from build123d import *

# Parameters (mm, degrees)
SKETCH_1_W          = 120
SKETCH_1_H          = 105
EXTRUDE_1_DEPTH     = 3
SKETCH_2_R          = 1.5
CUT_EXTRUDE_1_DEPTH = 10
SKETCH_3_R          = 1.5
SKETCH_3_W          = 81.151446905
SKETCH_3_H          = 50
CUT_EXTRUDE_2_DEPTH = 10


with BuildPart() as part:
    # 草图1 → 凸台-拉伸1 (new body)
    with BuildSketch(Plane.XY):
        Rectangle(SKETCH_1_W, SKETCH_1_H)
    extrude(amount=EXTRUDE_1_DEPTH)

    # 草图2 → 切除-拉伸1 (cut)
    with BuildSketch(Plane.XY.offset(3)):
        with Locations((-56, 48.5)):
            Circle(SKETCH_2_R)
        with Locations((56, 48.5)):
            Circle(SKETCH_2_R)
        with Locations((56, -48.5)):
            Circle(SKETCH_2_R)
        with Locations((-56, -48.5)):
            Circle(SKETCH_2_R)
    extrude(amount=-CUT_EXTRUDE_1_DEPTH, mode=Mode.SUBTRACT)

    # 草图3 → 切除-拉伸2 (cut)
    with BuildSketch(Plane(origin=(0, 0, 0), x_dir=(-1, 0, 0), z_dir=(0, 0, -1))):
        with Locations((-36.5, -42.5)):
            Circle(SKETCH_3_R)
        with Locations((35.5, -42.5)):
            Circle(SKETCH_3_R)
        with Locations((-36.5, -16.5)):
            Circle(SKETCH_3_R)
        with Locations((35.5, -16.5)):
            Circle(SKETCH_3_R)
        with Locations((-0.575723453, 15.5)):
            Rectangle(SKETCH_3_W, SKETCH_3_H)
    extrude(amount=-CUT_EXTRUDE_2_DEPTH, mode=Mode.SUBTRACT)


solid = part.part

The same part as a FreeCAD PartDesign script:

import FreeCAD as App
import Part
import Sketcher
Q = App.Units.Quantity

doc = App.newDocument("Part")
body = doc.addObject("PartDesign::Body", "Body")

sketch1 = body.newObject("Sketcher::SketchObject", "Sketch")
sketch1.AttachmentSupport = (doc.getObject("XY_Plane"), [""])
sketch1.MapMode = "FlatFace"
sketch1.addGeometry(Part.LineSegment(App.Vector(-60, 52, 0), App.Vector(-60, -52, 0)), False)
sketch1.addGeometry(Part.LineSegment(App.Vector(-60, -52, 0), App.Vector(60, -52, 0)), False)
sketch1.addGeometry(Part.LineSegment(App.Vector(60, -52, 0), App.Vector(60, 52, 0)), False)
sketch1.addGeometry(Part.LineSegment(App.Vector(60, 52, 0), App.Vector(-60, 52, 0)), False)
sketch1.addConstraint(Sketcher.Constraint("Coincident", 0, 2, 1, 1))
sketch1.addConstraint(Sketcher.Constraint("Coincident", 1, 2, 2, 1))
sketch1.addConstraint(Sketcher.Constraint("Coincident", 2, 2, 3, 1))
sketch1.addConstraint(Sketcher.Constraint("Coincident", 3, 2, 0, 1))
sketch1.addConstraint(Sketcher.Constraint("Vertical", 0))
sketch1.addConstraint(Sketcher.Constraint("Horizontal", 1))
sketch1.addConstraint(Sketcher.Constraint("Vertical", 2))
sketch1.addConstraint(Sketcher.Constraint("Horizontal", 3))
sketch1.addConstraint(Sketcher.Constraint("Symmetric", 0, 2, 2, 2, -1, 1))
sketch1.addConstraint(Sketcher.Constraint("DistanceX", 1, 1, 1, 2, Q("120 mm")))
sketch1.addConstraint(Sketcher.Constraint("DistanceY", 0, 2, 0, 1, Q("105 mm")))
pad1 = body.newObject("PartDesign::Pad", "Pad")
pad1.Profile = sketch1
pad1.Length = 3

sketch2 = body.newObject("Sketcher::SketchObject", "Sketch001")
sketch2.AttachmentSupport = (doc.getObject("XY_Plane"), [""])
sketch2.MapMode = "FlatFace"
sketch2.AttachmentOffset = App.Placement(App.Vector(0, 0, 3), App.Rotation())
sketch2.addGeometry(Part.Circle(App.Vector(-56, 48.5, 0), App.Vector(0, 0, 1), 1.5), False)
sketch2.addGeometry(Part.Circle(App.Vector(56, 48.5, 0), App.Vector(0, 0, 1), 1.5), False)
sketch2.addGeometry(Part.Circle(App.Vector(56, -48.5, 0), App.Vector(0, 0, 1), 1.5), False)
sketch2.addGeometry(Part.Circle(App.Vector(-56, -48.5, 0), App.Vector(0, 0, 1), 1.5), False)
sketch2.addConstraint(Sketcher.Constraint("Equal", 0, 1))
sketch2.addConstraint(Sketcher.Constraint("Equal", 1, 2))
sketch2.addConstraint(Sketcher.Constraint("Equal", 2, 3))
sketch2.addConstraint(Sketcher.Constraint("Symmetric", 0, 3, 2, 3, -1, 1))
sketch2.addConstraint(Sketcher.Constraint("Symmetric", 1, 3, 3, 3, -1, 1))
sketch2.addConstraint(Sketcher.Constraint("Symmetric", 0, 3, 1, 3, -2))
sketch2.addConstraint(Sketcher.Constraint("Diameter", 0, Q("3 mm")))
sketch2.addConstraint(Sketcher.Constraint("DistanceX", 0, 3, -1, 1, Q("56 mm")))
sketch2.addConstraint(Sketcher.Constraint("DistanceY", 2, 3, 1, 3, Q("97 mm")))
pocket1 = body.newObject("PartDesign::Pocket", "Pocket")
pocket1.Profile = sketch2
pocket1.Length = 10

sketch3 = body.newObject("Sketcher::SketchObject", "Sketch002")
sketch3.AttachmentSupport = (doc.getObject("XY_Plane"), [""])
sketch3.MapMode = "FlatFace"
sketch3.addGeometry(Part.Circle(App.Vector(36.5, -42.5, 0), App.Vector(0, 0, 1), 1.5), False)
sketch3.addGeometry(Part.Circle(App.Vector(-35.5, -42.5, 0), App.Vector(0, 0, 1), 1.5), False)
sketch3.addGeometry(Part.Circle(App.Vector(36.5, -16.5, 0), App.Vector(0, 0, 1), 1.5), False)
sketch3.addGeometry(Part.Circle(App.Vector(-35.5, -16.5, 0), App.Vector(0, 0, 1), 1.5), False)
sketch3.addGeometry(Part.LineSegment(App.Vector(41.2, 40.5, 0), App.Vector(41.2, -9.5, 0)), False)
sketch3.addGeometry(Part.LineSegment(App.Vector(41.2, -9.5, 0), App.Vector(-40, -9.5, 0)), False)
sketch3.addGeometry(Part.LineSegment(App.Vector(-40, -9.5, 0), App.Vector(-40, 40.5, 0)), False)
sketch3.addGeometry(Part.LineSegment(App.Vector(-40, 40.5, 0), App.Vector(41.2, 40.5, 0)), False)
sketch3.addConstraint(Sketcher.Constraint("Coincident", 4, 2, 5, 1))
sketch3.addConstraint(Sketcher.Constraint("Coincident", 5, 2, 6, 1))
sketch3.addConstraint(Sketcher.Constraint("Coincident", 6, 2, 7, 1))
sketch3.addConstraint(Sketcher.Constraint("Coincident", 7, 2, 4, 1))
sketch3.addConstraint(Sketcher.Constraint("Vertical", 4))
sketch3.addConstraint(Sketcher.Constraint("Horizontal", 5))
sketch3.addConstraint(Sketcher.Constraint("Vertical", 6))
sketch3.addConstraint(Sketcher.Constraint("Horizontal", 7))
sketch3.addConstraint(Sketcher.Constraint("Equal", 0, 1))
sketch3.addConstraint(Sketcher.Constraint("Equal", 1, 2))
sketch3.addConstraint(Sketcher.Constraint("Equal", 2, 3))
sketch3.addConstraint(Sketcher.Constraint("Horizontal", 0, 3, 1, 3))
sketch3.addConstraint(Sketcher.Constraint("Horizontal", 2, 3, 3, 3))
sketch3.addConstraint(Sketcher.Constraint("Vertical", 0, 3, 2, 3))
sketch3.addConstraint(Sketcher.Constraint("Vertical", 1, 3, 3, 3))
sketch3.addConstraint(Sketcher.Constraint("Diameter", 0, Q("3 mm")))
sketch3.addConstraint(Sketcher.Constraint("DistanceY", 4, 2, 4, 1, Q("50 mm")))
sketch3.addConstraint(Sketcher.Constraint("DistanceX", 5, 2, -1, 1, Q("40 mm")))
sketch3.addConstraint(Sketcher.Constraint("DistanceX", 1, 3, 0, 3, Q("72 mm")))
sketch3.addConstraint(Sketcher.Constraint("DistanceY", 0, 3, 2, 3, Q("26 mm")))
sketch3.addConstraint(Sketcher.Constraint("DistanceY", 2, 3, 4, 2, Q("7 mm")))
sketch3.addConstraint(Sketcher.Constraint("DistanceX", -1, 1, 0, 3, Q("36.5 mm")))
sketch3.addConstraint(Sketcher.Constraint("DistanceY", 0, 3, -1, 1, Q("42.5 mm")))
sketch3.addConstraint(Sketcher.Constraint("DistanceX", 5, 2, 5, 1, Q("81.151447 mm")))
pocket2 = body.newObject("PartDesign::Pocket", "Pocket001")
pocket2.Profile = sketch3
pocket2.Length = 10
pocket2.Reversed = True

doc.recompute()
